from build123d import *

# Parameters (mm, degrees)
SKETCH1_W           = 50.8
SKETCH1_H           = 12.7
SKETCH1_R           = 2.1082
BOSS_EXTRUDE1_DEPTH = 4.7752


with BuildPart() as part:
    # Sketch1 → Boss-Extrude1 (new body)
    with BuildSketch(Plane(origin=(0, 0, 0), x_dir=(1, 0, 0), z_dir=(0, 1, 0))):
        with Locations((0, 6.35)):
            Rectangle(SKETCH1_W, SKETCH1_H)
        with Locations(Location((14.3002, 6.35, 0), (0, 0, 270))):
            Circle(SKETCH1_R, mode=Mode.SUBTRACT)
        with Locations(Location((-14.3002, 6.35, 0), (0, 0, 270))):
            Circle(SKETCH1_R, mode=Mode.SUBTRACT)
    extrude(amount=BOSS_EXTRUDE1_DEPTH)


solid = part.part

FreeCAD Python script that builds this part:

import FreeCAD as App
import Part
import Sketcher
Q = App.Units.Quantity

doc = App.newDocument("Part")
body = doc.addObject("PartDesign::Body", "Body")

# Sketch on XZ plane
sketch1 = body.newObject("Sketcher::SketchObject", "Sketch")
sketch1.AttachmentSupport = (doc.getObject("XZ_Plane"), [""])
sketch1.MapMode = "FlatFace"
sketch1.addGeometry([
    Part.LineSegment(App.Vector(-25.4, -12.7, 0), App.Vector(-25.4, 0, 0)),  # 0
    Part.LineSegment(App.Vector(-25.4, 0, 0), App.Vector(25.4, 0, 0)),  # 1
    Part.LineSegment(App.Vector(25.4, 0, 0), App.Vector(25.4, -12.7, 0)),  # 2
    Part.LineSegment(App.Vector(25.4, -12.7, 0), App.Vector(-25.4, -12.7, 0)),  # 3
    Part.Circle(App.Vector(-14.3002, -6.35, 0), App.Vector(0, 0, 1), 2.1082),  # 4
    Part.Circle(App.Vector(14.3002, -6.35, 0), App.Vector(0, 0, 1), 2.1082),  # 5
], False)
sketch1.addConstraint([
    Sketcher.Constraint("Coincident", 0, 2, 1, 1),
    Sketcher.Constraint("Coincident", 1, 2, 2, 1),
    Sketcher.Constraint("Coincident", 2, 2, 3, 1),
    Sketcher.Constraint("Coincident", 3, 2, 0, 1),
    Sketcher.Constraint("Vertical", 0),
    Sketcher.Constraint("Horizontal", 1),
    Sketcher.Constraint("Vertical", 2),
    Sketcher.Constraint("Horizontal", 3),
    Sketcher.Constraint("Equal", 4, 5),
    Sketcher.Constraint("Symmetric", 0, 2, 1, 2, -1, 1),
    Sketcher.Constraint("Symmetric", 4, 3, 5, 3, -2),
    Sketcher.Constraint("DistanceX", 1, 1, 1, 2, Q("2 in")),
    Sketcher.Constraint("Diameter", 4, Q("0.166 in")),
    Sketcher.Constraint("DistanceY", 0, 1, 0, 2, Q("0.5 in")),
    Sketcher.Constraint("DistanceY", 4, 3, -1, 1, Q("0.25 in")),
    Sketcher.Constraint("DistanceX", 4, 3, -1, 1, Q("0.563 in")),
])
pad1 = body.newObject("PartDesign::Pad", "Pad")
pad1.Profile = sketch1
pad1.Length = Q("0.188 in")
pad1.Reversed = True

doc.recompute()
